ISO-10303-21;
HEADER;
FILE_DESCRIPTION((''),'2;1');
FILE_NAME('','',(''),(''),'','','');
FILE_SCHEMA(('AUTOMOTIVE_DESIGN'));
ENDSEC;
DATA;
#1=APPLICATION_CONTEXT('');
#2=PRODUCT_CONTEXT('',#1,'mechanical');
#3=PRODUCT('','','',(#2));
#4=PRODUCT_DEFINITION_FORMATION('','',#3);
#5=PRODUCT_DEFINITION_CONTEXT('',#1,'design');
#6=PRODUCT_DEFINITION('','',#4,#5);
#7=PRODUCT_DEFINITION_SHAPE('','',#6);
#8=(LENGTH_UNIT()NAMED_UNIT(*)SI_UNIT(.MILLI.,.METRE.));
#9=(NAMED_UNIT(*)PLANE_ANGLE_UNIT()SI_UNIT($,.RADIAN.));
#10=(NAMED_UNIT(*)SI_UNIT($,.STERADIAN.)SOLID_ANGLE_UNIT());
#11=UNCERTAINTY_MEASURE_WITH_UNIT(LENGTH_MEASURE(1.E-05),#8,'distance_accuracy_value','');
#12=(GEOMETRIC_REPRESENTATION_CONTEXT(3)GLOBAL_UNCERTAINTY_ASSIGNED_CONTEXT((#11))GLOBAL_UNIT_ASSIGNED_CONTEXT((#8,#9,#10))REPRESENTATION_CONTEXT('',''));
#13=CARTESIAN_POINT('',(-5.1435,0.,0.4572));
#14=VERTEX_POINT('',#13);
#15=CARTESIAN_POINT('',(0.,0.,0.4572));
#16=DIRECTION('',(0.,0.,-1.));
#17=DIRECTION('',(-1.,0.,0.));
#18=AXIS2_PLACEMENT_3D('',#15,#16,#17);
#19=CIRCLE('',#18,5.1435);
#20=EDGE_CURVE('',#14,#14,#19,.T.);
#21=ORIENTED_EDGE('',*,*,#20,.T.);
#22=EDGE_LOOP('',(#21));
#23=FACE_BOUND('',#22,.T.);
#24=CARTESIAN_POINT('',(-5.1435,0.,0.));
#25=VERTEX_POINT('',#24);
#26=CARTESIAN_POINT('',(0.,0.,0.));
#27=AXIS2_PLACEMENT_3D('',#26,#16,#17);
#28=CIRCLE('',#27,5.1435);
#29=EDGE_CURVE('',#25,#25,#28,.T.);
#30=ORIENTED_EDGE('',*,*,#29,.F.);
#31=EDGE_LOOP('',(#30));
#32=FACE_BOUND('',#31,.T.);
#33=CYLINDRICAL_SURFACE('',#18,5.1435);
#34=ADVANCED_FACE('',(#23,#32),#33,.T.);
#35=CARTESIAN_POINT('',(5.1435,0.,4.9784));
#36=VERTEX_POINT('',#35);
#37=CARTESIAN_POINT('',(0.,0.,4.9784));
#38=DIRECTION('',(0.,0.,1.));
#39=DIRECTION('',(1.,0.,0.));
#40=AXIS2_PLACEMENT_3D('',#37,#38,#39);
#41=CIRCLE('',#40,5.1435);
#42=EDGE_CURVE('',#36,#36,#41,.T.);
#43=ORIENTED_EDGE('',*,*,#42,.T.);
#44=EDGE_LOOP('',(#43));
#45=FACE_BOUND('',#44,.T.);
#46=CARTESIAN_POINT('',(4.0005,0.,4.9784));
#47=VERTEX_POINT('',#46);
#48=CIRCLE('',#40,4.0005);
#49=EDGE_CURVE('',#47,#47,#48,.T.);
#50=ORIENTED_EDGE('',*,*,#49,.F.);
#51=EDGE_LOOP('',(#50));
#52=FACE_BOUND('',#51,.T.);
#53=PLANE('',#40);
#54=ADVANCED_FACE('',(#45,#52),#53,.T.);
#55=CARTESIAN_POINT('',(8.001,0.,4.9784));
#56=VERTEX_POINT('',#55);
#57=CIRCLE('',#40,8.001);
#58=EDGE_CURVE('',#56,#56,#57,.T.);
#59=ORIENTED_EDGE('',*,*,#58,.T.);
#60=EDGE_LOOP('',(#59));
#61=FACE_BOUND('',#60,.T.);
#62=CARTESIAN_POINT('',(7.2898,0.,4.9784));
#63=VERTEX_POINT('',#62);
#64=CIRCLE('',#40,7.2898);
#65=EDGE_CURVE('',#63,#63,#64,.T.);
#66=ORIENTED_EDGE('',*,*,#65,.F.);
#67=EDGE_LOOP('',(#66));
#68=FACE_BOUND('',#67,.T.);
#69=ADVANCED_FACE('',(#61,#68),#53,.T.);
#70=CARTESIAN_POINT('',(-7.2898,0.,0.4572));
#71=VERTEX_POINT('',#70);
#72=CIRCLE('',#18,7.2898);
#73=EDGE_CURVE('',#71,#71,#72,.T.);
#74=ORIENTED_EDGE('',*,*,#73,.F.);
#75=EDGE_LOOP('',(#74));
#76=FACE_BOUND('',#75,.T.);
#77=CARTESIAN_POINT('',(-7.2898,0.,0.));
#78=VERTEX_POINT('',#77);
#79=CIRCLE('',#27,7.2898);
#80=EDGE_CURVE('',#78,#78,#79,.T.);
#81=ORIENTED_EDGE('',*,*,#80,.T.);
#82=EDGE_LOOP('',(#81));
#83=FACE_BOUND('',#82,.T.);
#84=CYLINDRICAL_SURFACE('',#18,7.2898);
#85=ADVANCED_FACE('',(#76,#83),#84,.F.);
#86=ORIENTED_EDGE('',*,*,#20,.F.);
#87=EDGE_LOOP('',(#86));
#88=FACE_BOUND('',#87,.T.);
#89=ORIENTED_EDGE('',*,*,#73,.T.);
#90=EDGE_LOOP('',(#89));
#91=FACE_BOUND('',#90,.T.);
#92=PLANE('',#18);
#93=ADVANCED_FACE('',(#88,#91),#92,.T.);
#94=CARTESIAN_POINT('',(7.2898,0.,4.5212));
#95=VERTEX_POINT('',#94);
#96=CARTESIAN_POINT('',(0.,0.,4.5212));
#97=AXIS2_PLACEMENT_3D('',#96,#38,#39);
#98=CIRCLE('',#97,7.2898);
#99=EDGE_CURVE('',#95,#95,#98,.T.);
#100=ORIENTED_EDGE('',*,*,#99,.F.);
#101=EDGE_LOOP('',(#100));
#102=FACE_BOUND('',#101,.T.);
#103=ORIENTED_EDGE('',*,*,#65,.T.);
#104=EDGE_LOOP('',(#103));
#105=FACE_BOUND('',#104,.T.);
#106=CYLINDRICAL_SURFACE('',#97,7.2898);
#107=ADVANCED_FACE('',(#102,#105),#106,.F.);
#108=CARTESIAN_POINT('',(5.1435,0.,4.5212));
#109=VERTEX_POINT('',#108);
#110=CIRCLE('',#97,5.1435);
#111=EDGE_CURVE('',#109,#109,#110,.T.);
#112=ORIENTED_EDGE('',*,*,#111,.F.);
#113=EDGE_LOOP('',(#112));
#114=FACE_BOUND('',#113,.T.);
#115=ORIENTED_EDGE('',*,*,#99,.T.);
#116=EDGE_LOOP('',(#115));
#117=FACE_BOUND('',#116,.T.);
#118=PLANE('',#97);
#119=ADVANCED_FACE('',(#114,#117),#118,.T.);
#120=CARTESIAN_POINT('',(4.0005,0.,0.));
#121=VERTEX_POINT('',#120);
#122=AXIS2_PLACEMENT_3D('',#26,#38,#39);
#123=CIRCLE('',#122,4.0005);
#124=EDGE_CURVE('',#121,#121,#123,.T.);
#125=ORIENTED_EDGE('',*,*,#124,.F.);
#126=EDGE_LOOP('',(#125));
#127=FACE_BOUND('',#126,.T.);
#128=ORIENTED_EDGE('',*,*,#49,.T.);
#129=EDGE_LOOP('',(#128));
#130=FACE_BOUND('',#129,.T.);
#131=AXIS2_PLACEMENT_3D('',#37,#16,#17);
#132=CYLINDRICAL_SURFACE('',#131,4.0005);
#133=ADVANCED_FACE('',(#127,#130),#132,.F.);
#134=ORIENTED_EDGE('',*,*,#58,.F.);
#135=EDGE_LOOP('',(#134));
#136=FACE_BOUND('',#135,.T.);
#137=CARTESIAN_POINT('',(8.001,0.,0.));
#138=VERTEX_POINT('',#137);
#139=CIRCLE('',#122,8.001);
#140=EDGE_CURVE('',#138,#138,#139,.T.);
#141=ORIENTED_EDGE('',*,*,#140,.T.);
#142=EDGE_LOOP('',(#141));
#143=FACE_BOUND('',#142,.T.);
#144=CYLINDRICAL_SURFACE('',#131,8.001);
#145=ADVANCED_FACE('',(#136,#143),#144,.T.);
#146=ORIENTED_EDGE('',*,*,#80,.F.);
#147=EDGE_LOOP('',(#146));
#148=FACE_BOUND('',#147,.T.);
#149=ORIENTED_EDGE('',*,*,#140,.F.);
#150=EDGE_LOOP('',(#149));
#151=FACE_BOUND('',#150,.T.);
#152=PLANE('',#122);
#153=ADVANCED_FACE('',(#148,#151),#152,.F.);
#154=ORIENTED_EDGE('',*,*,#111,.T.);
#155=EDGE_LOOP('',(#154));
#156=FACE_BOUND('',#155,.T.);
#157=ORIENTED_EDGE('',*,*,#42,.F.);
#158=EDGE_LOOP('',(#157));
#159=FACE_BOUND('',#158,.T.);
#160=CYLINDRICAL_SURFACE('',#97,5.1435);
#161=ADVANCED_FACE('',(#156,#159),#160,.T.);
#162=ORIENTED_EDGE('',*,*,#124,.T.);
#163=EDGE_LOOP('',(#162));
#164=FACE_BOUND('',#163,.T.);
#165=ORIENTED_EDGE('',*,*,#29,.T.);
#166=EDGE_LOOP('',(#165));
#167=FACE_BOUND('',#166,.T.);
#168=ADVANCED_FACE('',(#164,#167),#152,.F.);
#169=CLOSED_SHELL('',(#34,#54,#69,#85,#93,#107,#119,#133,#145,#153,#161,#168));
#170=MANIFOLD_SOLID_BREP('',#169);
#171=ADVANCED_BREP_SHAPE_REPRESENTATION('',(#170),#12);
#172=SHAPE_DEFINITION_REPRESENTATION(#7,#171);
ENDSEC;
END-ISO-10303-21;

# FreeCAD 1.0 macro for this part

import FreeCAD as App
import Part
import Sketcher

V = App.Vector
Q = App.Units.Quantity

doc = App.newDocument("Part")
body = doc.addObject("PartDesign::Body", "Body")

# Sketch on XY plane
sketch1 = body.newObject("Sketcher::SketchObject", "Sketch")
sketch1.AttachmentSupport = (doc.getObject("XY_Plane"), [""])
sketch1.MapMode = "FlatFace"
sketch1.addGeometry([
    Part.Circle(V(0, 0, 0), V(0, 0, 1), 8),
    Part.Circle(V(0, 0, 0), V(0, 0, 1), 4),
], False)
sketch1.addConstraint([
    Sketcher.Constraint("Coincident", 0, 3, -1, 1),
    Sketcher.Constraint("Coincident", 1, 3, -1, 1),
    Sketcher.Constraint("Diameter", 0, Q("0.63 in")),
    Sketcher.Constraint("Diameter", 1, Q("0.315 in")),
])
pad1 = body.newObject("PartDesign::Pad", "Pad")
pad1.Profile = sketch1
pad1.Length = Q("0.196 in")

# Sketch on XY plane
sketch2 = body.newObject("Sketcher::SketchObject", "Sketch001")
sketch2.AttachmentSupport = (doc.getObject("XY_Plane"), [""])
sketch2.MapMode = "FlatFace"
sketch2.AttachmentOffset = App.Placement(V(0, 0, 0.196 * 25.4), App.Rotation())
sketch2.addGeometry([
    Part.Circle(V(0, 0, 0), V(0, 0, 1), 7),
    Part.Circle(V(0, 0, 0), V(0, 0, 1), 5),
], False)
sketch2.addConstraint([
    Sketcher.Constraint("Coincident", 0, 3, -1, 1),
    Sketcher.Constraint("Coincident", 1, 3, -1, 1),
    Sketcher.Constraint("Diameter", 0, Q("0.574 in")),
    Sketcher.Constraint("Diameter", 1, Q("0.405 in")),
])
pocket1 = body.newObject("PartDesign::Pocket", "Pocket")
pocket1.Profile = sketch2
pocket1.Length = Q("0.018 in")

# Sketch on XY plane
sketch3 = body.newObject("Sketcher::SketchObject", "Sketch002")
sketch3.AttachmentSupport = (doc.getObject("XY_Plane"), [""])
sketch3.MapMode = "FlatFace"
sketch3.addGeometry([
    Part.Circle(V(0, 0, 0), V(0, 0, 1), 7),
    Part.Circle(V(0, 0, 0), V(0, 0, 1), 5),
], False)
sketch3.addConstraint([
    Sketcher.Constraint("Coincident", 0, 3, -1, 1),
    Sketcher.Constraint("Coincident", 1, 3, -1, 1),
    Sketcher.Constraint("Diameter", 0, Q("0.574 in")),
    Sketcher.Constraint("Diameter", 1, Q("0.405 in")),
])
pocket2 = body.newObject("PartDesign::Pocket", "Pocket001")
pocket2.Profile = sketch3
pocket2.Length = Q("0.018 in")
pocket2.Reversed = True

doc.recompute()
